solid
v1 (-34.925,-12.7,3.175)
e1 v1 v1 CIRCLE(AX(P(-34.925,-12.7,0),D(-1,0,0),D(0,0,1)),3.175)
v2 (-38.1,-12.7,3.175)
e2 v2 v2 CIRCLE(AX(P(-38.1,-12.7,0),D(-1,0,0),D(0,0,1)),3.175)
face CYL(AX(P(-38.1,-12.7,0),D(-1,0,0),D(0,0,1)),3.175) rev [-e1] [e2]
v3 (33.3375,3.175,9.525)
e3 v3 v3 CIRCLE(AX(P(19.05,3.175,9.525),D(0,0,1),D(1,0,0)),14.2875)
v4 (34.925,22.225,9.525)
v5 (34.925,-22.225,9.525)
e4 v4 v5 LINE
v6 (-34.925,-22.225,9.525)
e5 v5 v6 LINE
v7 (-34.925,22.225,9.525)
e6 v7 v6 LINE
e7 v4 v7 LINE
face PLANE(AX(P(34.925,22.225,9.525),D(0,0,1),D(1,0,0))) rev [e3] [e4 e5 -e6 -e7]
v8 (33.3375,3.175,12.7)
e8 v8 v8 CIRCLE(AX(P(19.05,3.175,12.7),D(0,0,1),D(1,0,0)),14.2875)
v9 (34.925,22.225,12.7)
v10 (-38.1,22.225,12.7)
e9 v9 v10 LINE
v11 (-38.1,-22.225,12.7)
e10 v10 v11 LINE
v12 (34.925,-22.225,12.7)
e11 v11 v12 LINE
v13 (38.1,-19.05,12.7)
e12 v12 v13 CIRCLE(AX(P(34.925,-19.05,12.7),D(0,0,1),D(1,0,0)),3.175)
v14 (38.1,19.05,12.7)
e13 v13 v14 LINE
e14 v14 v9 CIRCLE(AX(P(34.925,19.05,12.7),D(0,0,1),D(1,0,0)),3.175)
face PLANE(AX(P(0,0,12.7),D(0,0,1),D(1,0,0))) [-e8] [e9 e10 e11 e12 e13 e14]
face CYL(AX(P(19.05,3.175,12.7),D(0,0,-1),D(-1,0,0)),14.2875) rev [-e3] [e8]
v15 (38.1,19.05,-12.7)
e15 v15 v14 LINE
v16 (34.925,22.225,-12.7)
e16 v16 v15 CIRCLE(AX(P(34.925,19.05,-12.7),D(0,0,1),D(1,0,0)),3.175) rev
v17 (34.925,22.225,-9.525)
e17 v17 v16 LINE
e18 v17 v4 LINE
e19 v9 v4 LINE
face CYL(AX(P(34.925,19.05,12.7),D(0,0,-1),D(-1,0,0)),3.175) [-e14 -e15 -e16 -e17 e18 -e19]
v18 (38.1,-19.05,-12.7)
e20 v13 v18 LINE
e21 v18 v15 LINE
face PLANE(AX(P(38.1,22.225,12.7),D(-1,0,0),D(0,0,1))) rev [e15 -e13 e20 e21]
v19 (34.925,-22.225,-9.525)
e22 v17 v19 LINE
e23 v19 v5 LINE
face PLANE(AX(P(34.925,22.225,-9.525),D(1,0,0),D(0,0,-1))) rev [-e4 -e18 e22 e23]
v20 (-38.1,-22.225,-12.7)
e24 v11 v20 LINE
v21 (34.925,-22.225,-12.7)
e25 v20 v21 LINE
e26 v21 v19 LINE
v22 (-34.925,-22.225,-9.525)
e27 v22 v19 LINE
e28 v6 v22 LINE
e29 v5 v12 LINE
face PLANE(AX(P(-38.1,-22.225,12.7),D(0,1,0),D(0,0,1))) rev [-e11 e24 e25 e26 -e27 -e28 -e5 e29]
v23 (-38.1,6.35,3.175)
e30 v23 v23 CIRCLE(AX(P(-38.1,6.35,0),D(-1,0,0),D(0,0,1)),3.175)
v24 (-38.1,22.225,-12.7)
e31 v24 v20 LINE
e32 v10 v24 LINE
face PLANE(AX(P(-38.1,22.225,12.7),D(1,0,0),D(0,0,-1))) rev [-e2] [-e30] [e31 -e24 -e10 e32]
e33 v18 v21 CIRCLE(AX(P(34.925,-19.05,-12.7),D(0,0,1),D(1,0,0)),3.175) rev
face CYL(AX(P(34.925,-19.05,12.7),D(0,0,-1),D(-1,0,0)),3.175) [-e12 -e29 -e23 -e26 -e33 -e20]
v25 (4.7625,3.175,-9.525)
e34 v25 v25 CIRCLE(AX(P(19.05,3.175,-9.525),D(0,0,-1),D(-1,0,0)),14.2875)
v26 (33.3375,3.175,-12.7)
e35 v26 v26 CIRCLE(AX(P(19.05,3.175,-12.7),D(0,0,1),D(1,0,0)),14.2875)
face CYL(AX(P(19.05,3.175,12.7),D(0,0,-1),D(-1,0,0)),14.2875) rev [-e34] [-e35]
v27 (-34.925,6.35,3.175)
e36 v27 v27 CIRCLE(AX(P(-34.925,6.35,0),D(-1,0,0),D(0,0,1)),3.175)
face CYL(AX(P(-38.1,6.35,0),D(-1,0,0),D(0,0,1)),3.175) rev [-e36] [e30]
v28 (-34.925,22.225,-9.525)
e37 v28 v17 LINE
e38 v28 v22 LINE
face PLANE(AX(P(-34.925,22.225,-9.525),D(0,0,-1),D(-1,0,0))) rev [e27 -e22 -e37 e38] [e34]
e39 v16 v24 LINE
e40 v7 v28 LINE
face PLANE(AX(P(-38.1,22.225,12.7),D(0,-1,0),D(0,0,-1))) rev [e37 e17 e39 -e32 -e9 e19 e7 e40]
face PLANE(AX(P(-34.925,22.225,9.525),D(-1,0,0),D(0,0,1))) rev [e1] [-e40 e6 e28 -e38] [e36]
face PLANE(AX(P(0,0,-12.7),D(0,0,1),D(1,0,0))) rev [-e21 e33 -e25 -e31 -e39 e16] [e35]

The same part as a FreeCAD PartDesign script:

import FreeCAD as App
import Part
import Sketcher
Q = App.Units.Quantity


def edges_at(feature, points):
    """Names of the edges that pass closest to the given points."""
    edges = feature.Shape.Edges
    near = lambda p: min(range(len(edges)), key=lambda i: edges[i].distToShape(Part.Vertex(*p))[0])
    return sorted({f"Edge{near(p) + 1}" for p in points})

doc = App.newDocument("Part")
body = doc.addObject("PartDesign::Body", "Body")

# Sketch on XY plane
sketch1 = body.newObject("Sketcher::SketchObject", "Sketch")
sketch1.AttachmentSupport = (doc.getObject("XY_Plane"), [""])
sketch1.MapMode = "FlatFace"
sketch1.addGeometry([
    Part.LineSegment(App.Vector(-38.1, 22.225, 0), App.Vector(-38.1, -22.225, 0)),  # 0
    Part.LineSegment(App.Vector(-38.1, -22.225, 0), App.Vector(38.1, -22.225, 0)),  # 1
    Part.LineSegment(App.Vector(38.1, -22.225, 0), App.Vector(38.1, 22.225, 0)),  # 2
    Part.LineSegment(App.Vector(38.1, 22.225, 0), App.Vector(-38.1, 22.225, 0)),  # 3
    Part.Circle(App.Vector(19.05, 3.175, 0), App.Vector(0, 0, 1), 14.2875),  # 4
], False)
sketch1.addConstraint([
    Sketcher.Constraint("Coincident", 0, 2, 1, 1),
    Sketcher.Constraint("Coincident", 1, 2, 2, 1),
    Sketcher.Constraint("Coincident", 2, 2, 3, 1),
    Sketcher.Constraint("Coincident", 3, 2, 0, 1),
    Sketcher.Constraint("Vertical", 0),
    Sketcher.Constraint("Horizontal", 1),
    Sketcher.Constraint("Vertical", 2),
    Sketcher.Constraint("Horizontal", 3),
    Sketcher.Constraint("Symmetric", 0, 2, 2, 2, -1, 1),
    Sketcher.Constraint("DistanceX", 1, 1, 1, 2, Q("3 in")),
    Sketcher.Constraint("Diameter", 4, Q("1.125 in")),
    Sketcher.Constraint("DistanceY", 0, 2, 4, 3, Q("1 in")),
    Sketcher.Constraint("DistanceY", 0, 2, 0, 1, Q("1.75 in")),
    Sketcher.Constraint("DistanceX", -1, 1, 4, 3, Q("0.75 in")),
])
pad1 = body.newObject("PartDesign::Pad", "Pad")
pad1.Profile = sketch1
pad1.Length = Q("1 in")
pad1.Midplane = True
doc.recompute()

fillet = body.newObject("PartDesign::Fillet", "Fillet")
fillet.Base = (pad1, edges_at(pad1, [(38.1, -22.225, 0), (38.1, 22.225, 0)]))
fillet.Radius = Q("0.125 in")

# Sketch on XZ plane
sketch2 = body.newObject("Sketcher::SketchObject", "Sketch001")
sketch2.AttachmentSupport = (doc.getObject("XZ_Plane"), [""])
sketch2.MapMode = "FlatFace"
sketch2.AttachmentOffset = App.Placement(App.Vector(0, 0, 0.875 * 25.4), App.Rotation())
sketch2.addGeometry([
    Part.LineSegment(App.Vector(-34.925, 9.525, 0), App.Vector(-34.925, -9.525, 0)),
    Part.LineSegment(App.Vector(-34.925, -9.525, 0), App.Vector(34.925, -9.525, 0)),
    Part.LineSegment(App.Vector(34.925, -9.525, 0), App.Vector(34.925, 9.525, 0)),
    Part.LineSegment(App.Vector(34.925, 9.525, 0), App.Vector(-34.925, 9.525, 0)),
], False)
sketch2.addConstraint([
    Sketcher.Constraint("Coincident", 0, 2, 1, 1),
    Sketcher.Constraint("Coincident", 1, 2, 2, 1),
    Sketcher.Constraint("Coincident", 2, 2, 3, 1),
    Sketcher.Constraint("Coincident", 3, 2, 0, 1),
    Sketcher.Constraint("Vertical", 0),
    Sketcher.Constraint("Horizontal", 1),
    Sketcher.Constraint("Vertical", 2),
    Sketcher.Constraint("Horizontal", 3),
    Sketcher.Constraint("Symmetric", 0, 2, 2, 2, -1, 1),
    Sketcher.Constraint("DistanceX", 1, 1, 1, 2, Q("2.75 in")),
    Sketcher.Constraint("DistanceY", 0, 2, 0, 1, Q("0.75 in")),
])
pocket1 = body.newObject("PartDesign::Pocket", "Pocket")
pocket1.Profile = sketch2
pocket1.Type = "ThroughAll"

# Sketch on YZ plane
sketch3 = body.newObject("Sketcher::SketchObject", "Sketch002")
sketch3.AttachmentSupport = (doc.getObject("YZ_Plane"), [""])
sketch3.MapMode = "FlatFace"
sketch3.AttachmentOffset = App.Placement(App.Vector(0, 0, -1.5 * 25.4), App.Rotation())
sketch3.addGeometry([
    Part.Circle(App.Vector(6.35, 0, 0), App.Vector(0, 0, 1), 3.175),
    Part.Circle(App.Vector(-12.7, 0, 0), App.Vector(0, 0, 1), 3.175),
], False)
sketch3.addConstraint([
    Sketcher.Constraint("Equal", 0, 1),
    Sketcher.Constraint("PointOnObject", 0, 3, -1),
    Sketcher.Constraint("PointOnObject", 1, 3, -1),
    Sketcher.Constraint("Diameter", 0, Q("0.25 in")),
    Sketcher.Constraint("DistanceX", 1, 3, -1, 1, Q("0.5 in")),
    Sketcher.Constraint("DistanceX", -1, 1, 0, 3, Q("0.25 in")),
])
doc.recompute()
hole = body.newObject("PartDesign::Hole", "Hole")
hole.Profile = sketch3
hole.ThreadType = "None"
hole.Diameter = Q("0.25 in")
hole.DepthType = "Dimension"
hole.Depth = Q("0.2 in")
hole.DrillPoint = "Angled"
hole.DrillPointAngle = 118
hole.Reversed = True

doc.recompute()
